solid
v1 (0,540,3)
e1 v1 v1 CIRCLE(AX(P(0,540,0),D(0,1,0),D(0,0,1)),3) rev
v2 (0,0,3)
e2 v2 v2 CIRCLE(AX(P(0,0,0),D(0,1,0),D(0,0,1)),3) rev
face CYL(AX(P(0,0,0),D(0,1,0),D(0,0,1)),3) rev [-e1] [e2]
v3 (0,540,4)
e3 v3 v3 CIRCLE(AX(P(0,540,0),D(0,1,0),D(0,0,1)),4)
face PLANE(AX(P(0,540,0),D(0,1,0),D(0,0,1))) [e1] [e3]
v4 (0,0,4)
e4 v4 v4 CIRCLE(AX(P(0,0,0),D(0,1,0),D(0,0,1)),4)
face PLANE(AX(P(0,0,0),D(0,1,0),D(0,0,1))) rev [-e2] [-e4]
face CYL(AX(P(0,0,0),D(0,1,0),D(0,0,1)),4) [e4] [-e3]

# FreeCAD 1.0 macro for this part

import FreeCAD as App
import Part
import Sketcher

doc = App.newDocument("Part")
body = doc.addObject("PartDesign::Body", "Body")

sketch1 = doc.addObject("Sketcher::SketchObject", "Sketch")
body.addObject(sketch1)
sketch1.AttachmentSupport = (doc.XZ_Plane, [""])
sketch1.MapMode = "FlatFace"
sketch1.addGeometry([
    Part.Circle(App.Vector(0, 0, 0), App.Vector(0, 0, 1), 4),
    Part.Circle(App.Vector(0, 0, 0), App.Vector(0, 0, 1), 3),
], False)
sketch1.addConstraint([
    Sketcher.Constraint("Coincident", 0, 3, -1, 1),
    Sketcher.Constraint("Coincident", 1, 3, -1, 1),
    Sketcher.Constraint("Diameter", 0, 8.0),
    Sketcher.Constraint("Diameter", 1, 6.0),
])

sketch2 = doc.addObject("Sketcher::SketchObject", "Sketch001")
body.addObject(sketch2)
sketch2.AttachmentSupport = (doc.XY_Plane, [""])
sketch2.MapMode = "FlatFace"
sketch2.addGeometry(Part.LineSegment(App.Vector(0, 0, 0), App.Vector(0, 540, 0)), False)
sketch2.addConstraint([
    Sketcher.Constraint("Vertical", 0),
    Sketcher.Constraint("Coincident", 0, 1, -1, 1),
    Sketcher.Constraint("DistanceY", 0, 1, 0, 2, 540.0),
])
doc.recompute()

additivepipe = doc.addObject("PartDesign::AdditivePipe", "AdditivePipe")
body.addObject(additivepipe)
additivepipe.Profile = sketch1
additivepipe.Spine = (sketch2, ["Edge1"])

doc.recompute()
